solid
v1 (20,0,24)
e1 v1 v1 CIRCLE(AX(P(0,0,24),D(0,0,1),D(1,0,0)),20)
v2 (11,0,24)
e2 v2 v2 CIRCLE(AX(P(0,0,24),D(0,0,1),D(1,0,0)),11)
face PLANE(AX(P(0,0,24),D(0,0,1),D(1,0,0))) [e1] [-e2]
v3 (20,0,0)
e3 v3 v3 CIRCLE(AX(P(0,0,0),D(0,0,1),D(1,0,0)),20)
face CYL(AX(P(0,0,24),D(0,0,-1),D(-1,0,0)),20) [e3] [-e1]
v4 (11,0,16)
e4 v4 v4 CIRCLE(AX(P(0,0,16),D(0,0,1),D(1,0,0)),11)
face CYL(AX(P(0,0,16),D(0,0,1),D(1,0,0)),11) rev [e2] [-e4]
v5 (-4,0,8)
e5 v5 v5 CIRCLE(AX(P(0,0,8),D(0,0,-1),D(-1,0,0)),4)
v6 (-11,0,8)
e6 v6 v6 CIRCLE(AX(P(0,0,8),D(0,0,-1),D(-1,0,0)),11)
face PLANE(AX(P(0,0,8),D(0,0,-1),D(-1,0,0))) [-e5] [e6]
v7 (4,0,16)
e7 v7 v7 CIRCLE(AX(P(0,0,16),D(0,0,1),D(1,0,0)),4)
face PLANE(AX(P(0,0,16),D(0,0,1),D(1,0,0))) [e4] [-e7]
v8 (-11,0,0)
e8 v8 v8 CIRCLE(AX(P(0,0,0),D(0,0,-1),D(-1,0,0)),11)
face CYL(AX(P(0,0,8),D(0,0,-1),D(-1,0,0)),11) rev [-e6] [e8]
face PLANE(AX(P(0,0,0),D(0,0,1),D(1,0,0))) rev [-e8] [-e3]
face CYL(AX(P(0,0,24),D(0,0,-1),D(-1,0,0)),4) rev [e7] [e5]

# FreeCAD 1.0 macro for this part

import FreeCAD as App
import Part
import Sketcher

V = App.Vector

doc = App.newDocument("Part")
body = doc.addObject("PartDesign::Body", "Body")

# Sketch on XY plane
sketch1 = doc.addObject("Sketcher::SketchObject", "Sketch")
body.addObject(sketch1)
sketch1.AttachmentSupport = (doc.XY_Plane, [""])
sketch1.MapMode = "FlatFace"
sketch1.addGeometry(Part.Circle(V(0, 0, 0), V(0, 0, 1), 20), False)
sketch1.addGeometry(Part.Circle(V(0, 0, 0), V(0, 0, 1), 4), False)
sketch1.addConstraint(Sketcher.Constraint("Coincident", 0, 3, -1, 1))
sketch1.addConstraint(Sketcher.Constraint("Coincident", 1, 3, -1, 1))
sketch1.addConstraint(Sketcher.Constraint("Diameter", 0, 40.0))
sketch1.addConstraint(Sketcher.Constraint("Diameter", 1, 8.0))
pad1 = doc.addObject("PartDesign::Pad", "Pad")
body.addObject(pad1)
pad1.Profile = sketch1
pad1.Length = 24

# Sketch on XY plane
sketch2 = doc.addObject("Sketcher::SketchObject", "Sketch001")
body.addObject(sketch2)
sketch2.AttachmentSupport = (doc.XY_Plane, [""])
sketch2.MapMode = "FlatFace"
sketch2.AttachmentOffset = App.Placement(V(0, 0, 24), App.Rotation())
sketch2.addGeometry(Part.Circle(V(0, 0, 0), V(0, 0, 1), 11), False)
sketch2.addConstraint(Sketcher.Constraint("Coincident", 0, 3, -1, 1))
sketch2.addConstraint(Sketcher.Constraint("Diameter", 0, 22.0))
pocket1 = doc.addObject("PartDesign::Pocket", "Pocket")
body.addObject(pocket1)
pocket1.Profile = sketch2
pocket1.Length = 8

# Sketch on XY plane
sketch3 = doc.addObject("Sketcher::SketchObject", "Sketch002")
body.addObject(sketch3)
sketch3.AttachmentSupport = (doc.XY_Plane, [""])
sketch3.MapMode = "FlatFace"
sketch3.AttachmentOffset = App.Placement(V(0, 0, 8), App.Rotation())
sketch3.addGeometry(Part.Circle(V(0, 0, 0), V(0, 0, 1), 11), False)
sketch3.addConstraint(Sketcher.Constraint("Coincident", 0, 3, -1, 1))
sketch3.addConstraint(Sketcher.Constraint("Diameter", 0, 22.0))
pocket2 = doc.addObject("PartDesign::Pocket", "Pocket001")
body.addObject(pocket2)
pocket2.Profile = sketch3
pocket2.Length = 8

doc.recompute()
